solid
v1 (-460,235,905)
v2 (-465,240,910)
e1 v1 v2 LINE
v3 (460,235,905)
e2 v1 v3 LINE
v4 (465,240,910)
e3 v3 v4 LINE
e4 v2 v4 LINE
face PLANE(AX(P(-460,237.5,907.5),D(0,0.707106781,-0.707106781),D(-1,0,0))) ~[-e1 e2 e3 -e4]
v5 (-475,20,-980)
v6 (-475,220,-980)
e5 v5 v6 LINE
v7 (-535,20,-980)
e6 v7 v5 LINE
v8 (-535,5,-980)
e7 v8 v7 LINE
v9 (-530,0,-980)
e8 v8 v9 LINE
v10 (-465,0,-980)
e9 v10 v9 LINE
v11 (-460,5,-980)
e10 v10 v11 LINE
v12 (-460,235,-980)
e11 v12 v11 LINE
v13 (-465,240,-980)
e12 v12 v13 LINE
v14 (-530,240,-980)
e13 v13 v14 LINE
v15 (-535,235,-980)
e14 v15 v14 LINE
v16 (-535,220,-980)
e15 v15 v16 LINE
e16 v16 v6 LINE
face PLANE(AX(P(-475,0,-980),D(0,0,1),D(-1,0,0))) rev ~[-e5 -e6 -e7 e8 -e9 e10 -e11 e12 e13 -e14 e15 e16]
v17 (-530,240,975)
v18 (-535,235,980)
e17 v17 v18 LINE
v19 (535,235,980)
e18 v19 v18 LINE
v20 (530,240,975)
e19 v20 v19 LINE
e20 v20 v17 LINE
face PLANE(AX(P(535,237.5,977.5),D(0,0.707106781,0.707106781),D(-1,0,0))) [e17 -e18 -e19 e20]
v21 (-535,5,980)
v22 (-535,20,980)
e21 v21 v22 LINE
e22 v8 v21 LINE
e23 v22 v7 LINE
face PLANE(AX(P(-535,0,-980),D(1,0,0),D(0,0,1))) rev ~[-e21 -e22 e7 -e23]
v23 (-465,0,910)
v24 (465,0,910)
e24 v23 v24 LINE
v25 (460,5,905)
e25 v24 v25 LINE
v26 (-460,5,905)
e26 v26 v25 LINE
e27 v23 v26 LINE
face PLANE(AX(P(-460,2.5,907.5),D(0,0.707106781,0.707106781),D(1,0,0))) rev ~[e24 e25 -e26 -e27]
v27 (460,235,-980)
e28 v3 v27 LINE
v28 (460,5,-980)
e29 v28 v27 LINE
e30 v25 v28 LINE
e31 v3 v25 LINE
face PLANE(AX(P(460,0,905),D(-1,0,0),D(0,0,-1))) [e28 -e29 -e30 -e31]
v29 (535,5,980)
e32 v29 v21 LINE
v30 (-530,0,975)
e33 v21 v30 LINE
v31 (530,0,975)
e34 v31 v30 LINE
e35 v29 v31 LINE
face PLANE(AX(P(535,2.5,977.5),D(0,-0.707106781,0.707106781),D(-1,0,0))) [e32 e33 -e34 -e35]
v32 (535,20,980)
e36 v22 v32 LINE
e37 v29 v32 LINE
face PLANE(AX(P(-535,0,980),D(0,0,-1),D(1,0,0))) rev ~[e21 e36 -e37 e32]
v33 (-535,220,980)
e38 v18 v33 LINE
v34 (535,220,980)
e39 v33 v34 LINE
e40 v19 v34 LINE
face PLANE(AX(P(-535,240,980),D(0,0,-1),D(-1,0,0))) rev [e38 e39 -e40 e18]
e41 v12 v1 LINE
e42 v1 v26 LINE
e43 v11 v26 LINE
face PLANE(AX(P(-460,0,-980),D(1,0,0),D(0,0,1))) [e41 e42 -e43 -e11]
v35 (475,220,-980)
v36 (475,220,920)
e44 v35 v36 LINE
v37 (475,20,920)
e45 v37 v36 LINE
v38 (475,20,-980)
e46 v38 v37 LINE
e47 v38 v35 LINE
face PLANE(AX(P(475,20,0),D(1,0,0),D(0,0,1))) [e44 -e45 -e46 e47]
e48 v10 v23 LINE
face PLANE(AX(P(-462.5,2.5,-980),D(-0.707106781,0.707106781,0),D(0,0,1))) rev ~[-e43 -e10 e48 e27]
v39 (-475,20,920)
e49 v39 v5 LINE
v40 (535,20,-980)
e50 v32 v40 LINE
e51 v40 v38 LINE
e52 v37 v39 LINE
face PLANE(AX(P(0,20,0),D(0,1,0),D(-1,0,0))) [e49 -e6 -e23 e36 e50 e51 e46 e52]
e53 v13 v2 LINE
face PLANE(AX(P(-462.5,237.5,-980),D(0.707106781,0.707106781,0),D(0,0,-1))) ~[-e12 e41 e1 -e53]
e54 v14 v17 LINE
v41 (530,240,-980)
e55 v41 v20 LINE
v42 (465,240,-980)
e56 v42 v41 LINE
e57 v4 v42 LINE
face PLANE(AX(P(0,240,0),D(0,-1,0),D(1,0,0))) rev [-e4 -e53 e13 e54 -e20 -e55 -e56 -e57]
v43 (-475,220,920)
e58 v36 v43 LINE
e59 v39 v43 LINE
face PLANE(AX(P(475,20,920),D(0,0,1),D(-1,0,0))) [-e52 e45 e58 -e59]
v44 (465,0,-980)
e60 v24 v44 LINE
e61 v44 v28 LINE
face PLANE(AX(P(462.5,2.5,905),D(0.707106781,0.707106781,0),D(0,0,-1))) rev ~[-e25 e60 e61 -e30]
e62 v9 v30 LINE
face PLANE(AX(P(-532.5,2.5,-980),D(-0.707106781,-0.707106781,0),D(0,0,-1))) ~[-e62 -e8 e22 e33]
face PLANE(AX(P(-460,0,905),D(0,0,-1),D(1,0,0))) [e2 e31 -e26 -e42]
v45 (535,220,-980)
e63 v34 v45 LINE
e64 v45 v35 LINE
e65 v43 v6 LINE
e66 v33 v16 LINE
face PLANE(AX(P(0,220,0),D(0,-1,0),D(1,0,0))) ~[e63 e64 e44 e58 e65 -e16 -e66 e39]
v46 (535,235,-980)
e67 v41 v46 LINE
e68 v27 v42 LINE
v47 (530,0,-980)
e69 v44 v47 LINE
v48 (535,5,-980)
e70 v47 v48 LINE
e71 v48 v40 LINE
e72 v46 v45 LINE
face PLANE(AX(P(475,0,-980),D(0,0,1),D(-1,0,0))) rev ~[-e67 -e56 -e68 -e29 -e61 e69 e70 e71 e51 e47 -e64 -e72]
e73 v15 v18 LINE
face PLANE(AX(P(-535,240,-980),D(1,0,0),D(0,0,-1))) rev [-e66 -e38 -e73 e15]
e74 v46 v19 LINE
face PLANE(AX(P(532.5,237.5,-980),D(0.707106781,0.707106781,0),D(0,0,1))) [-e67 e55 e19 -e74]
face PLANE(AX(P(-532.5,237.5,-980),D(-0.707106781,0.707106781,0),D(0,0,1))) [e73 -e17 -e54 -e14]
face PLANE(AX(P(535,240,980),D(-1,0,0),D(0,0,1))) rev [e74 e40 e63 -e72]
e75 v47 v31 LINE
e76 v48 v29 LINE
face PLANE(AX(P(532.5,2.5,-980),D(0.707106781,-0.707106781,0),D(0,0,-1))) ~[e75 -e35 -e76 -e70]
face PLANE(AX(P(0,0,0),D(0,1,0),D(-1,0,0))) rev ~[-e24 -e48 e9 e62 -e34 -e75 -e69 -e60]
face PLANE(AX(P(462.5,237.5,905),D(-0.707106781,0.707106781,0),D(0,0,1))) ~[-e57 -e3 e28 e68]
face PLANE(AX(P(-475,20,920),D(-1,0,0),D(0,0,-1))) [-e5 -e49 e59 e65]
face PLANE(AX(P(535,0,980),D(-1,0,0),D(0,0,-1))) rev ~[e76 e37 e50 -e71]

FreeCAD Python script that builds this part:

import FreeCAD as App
import Part
import Sketcher
from FreeCAD import Vector


def edges_at(feature, points):
    """Names of the edges that pass closest to the given points."""
    edges = feature.Shape.Edges
    near = lambda p: min(range(len(edges)), key=lambda i: edges[i].distToShape(Part.Vertex(*p))[0])
    return sorted({f"Edge{near(p) + 1}" for p in points})

doc = App.newDocument("Part")
body = doc.addObject("PartDesign::Body", "Body")

# Sketch on XZ plane
sketch1 = doc.addObject("Sketcher::SketchObject", "Sketch")
body.addObject(sketch1)
sketch1.AttachmentSupport = (doc.XZ_Plane, [""])
sketch1.MapMode = "FlatFace"
sketch1.addGeometry([
    Part.LineSegment(Vector(-535, -980, 0), Vector(-535, 980, 0)),  # 0
    Part.LineSegment(Vector(-535, 980, 0), Vector(535, 980, 0)),  # 1
    Part.LineSegment(Vector(535, 980, 0), Vector(535, -980, 0)),  # 2
    Part.LineSegment(Vector(535, -980, 0), Vector(460, -980, 0)),  # 3
    Part.LineSegment(Vector(460, -980, 0), Vector(460, 905, 0)),  # 4
    Part.LineSegment(Vector(460, 905, 0), Vector(-460, 905, 0)),  # 5
    Part.LineSegment(Vector(-460, 905, 0), Vector(-460, -980, 0)),  # 6
    Part.LineSegment(Vector(-460, -980, 0), Vector(-535, -980, 0)),  # 7
], False)
sketch1.addConstraint([
    Sketcher.Constraint("Coincident", 0, 2, 1, 1),
    Sketcher.Constraint("Coincident", 1, 2, 2, 1),
    Sketcher.Constraint("Coincident", 2, 2, 3, 1),
    Sketcher.Constraint("Coincident", 3, 2, 4, 1),
    Sketcher.Constraint("Coincident", 4, 2, 5, 1),
    Sketcher.Constraint("Coincident", 5, 2, 6, 1),
    Sketcher.Constraint("Coincident", 6, 2, 7, 1),
    Sketcher.Constraint("Coincident", 7, 2, 0, 1),
    Sketcher.Constraint("Vertical", 0),
    Sketcher.Constraint("Horizontal", 1),
    Sketcher.Constraint("Vertical", 2),
    Sketcher.Constraint("Horizontal", 3),
    Sketcher.Constraint("Vertical", 4),
    Sketcher.Constraint("Horizontal", 5),
    Sketcher.Constraint("Vertical", 6),
    Sketcher.Constraint("Horizontal", 7),
    Sketcher.Constraint("Symmetric", 0, 2, 2, 2, -1, 1),
    Sketcher.Constraint("Symmetric", 3, 2, 6, 2, -2),
    Sketcher.Constraint("DistanceX", 1, 1, 1, 2, 1070.0),
    Sketcher.Constraint("DistanceX", 3, 2, 3, 1, 75.0),
    Sketcher.Constraint("DistanceY", 0, 1, 0, 2, 1960.0),
    Sketcher.Constraint("DistanceY", 4, 1, 4, 2, 1885.0),
])
pad1 = doc.addObject("PartDesign::Pad", "Pad")
body.addObject(pad1)
pad1.Profile = sketch1
pad1.Length = 20
pad1.Reversed = True

# Sketch on XZ plane
sketch2 = doc.addObject("Sketcher::SketchObject", "Sketch001")
body.addObject(sketch2)
sketch2.AttachmentSupport = (doc.XZ_Plane, [""])
sketch2.MapMode = "FlatFace"
sketch2.AttachmentOffset = App.Placement(Vector(0, 0, -20), App.Rotation())
sketch2.addGeometry([
    Part.LineSegment(Vector(460, 905, 0), Vector(-460, 905, 0)),  # 0
    Part.LineSegment(Vector(-460, 905, 0), Vector(-460, -980, 0)),  # 1
    Part.LineSegment(Vector(-460, -980, 0), Vector(-475, -980, 0)),  # 2
    Part.LineSegment(Vector(-475, -980, 0), Vector(-475, 920, 0)),  # 3
    Part.LineSegment(Vector(-475, 920, 0), Vector(475, 920, 0)),  # 4
    Part.LineSegment(Vector(475, 920, 0), Vector(475, -980, 0)),  # 5
    Part.LineSegment(Vector(475, -980, 0), Vector(460, -980, 0)),  # 6
    Part.LineSegment(Vector(460, -980, 0), Vector(460, 905, 0)),  # 7
], False)
sketch2.addConstraint([
    Sketcher.Constraint("Coincident", 0, 2, 1, 1),
    Sketcher.Constraint("Coincident", 1, 2, 2, 1),
    Sketcher.Constraint("Coincident", 2, 2, 3, 1),
    Sketcher.Constraint("Coincident", 3, 2, 4, 1),
    Sketcher.Constraint("Coincident", 4, 2, 5, 1),
    Sketcher.Constraint("Coincident", 5, 2, 6, 1),
    Sketcher.Constraint("Coincident", 6, 2, 7, 1),
    Sketcher.Constraint("Coincident", 7, 2, 0, 1),
    Sketcher.Constraint("Horizontal", 0),
    Sketcher.Constraint("Vertical", 1),
    Sketcher.Constraint("Horizontal", 2),
    Sketcher.Constraint("Vertical", 3),
    Sketcher.Constraint("Horizontal", 4),
    Sketcher.Constraint("Vertical", 5),
    Sketcher.Constraint("Horizontal", 6),
    Sketcher.Constraint("Vertical", 7),
    Sketcher.Constraint("Symmetric", 2, 2, 5, 2, -2),
    Sketcher.Constraint("Equal", 2, 6),
    Sketcher.Constraint("DistanceX", 4, 1, 4, 2, 950.0),
    Sketcher.Constraint("DistanceY", 3, 1, 3, 2, 1900.0),
    Sketcher.Constraint("DistanceX", 0, 2, 0, 1, 920.0),
    Sketcher.Constraint("DistanceY", 1, 2, 1, 1, 1885.0),
    Sketcher.Constraint("DistanceY", -1, 1, 0, 2, 905.0),
])
pad2 = doc.addObject("PartDesign::Pad", "Pad001")
body.addObject(pad2)
pad2.Profile = sketch2
pad2.Length = 100
pad2.Reversed = True
doc.recompute()

chamfer = doc.addObject("PartDesign::Chamfer", "Chamfer")
body.addObject(chamfer)
chamfer.Base = (pad2, edges_at(pad2, [
    (-460, 0, -37.5),
    (0, 0, 905),
    (460, 0, -37.5),
    (0, 0, 980),
    (535, 0, 0),
    (-535, 0, 0),
]))
chamfer.Size = 5
doc.recompute()

datumplane = doc.addObject("PartDesign::Plane", "DatumPlane")
body.addObject(datumplane)
datumplane.AttachmentSupport = (doc.XZ_Plane, [""])
datumplane.MapMode = "FlatFace"
datumplane.AttachmentOffset = App.Placement(Vector(0, 0, -120), App.Rotation())
mirrored = doc.addObject("PartDesign::Mirrored", "Mirrored")
body.addObject(mirrored)
mirrored.Originals = [pad1, pad2, chamfer]
mirrored.MirrorPlane = (datumplane, [""])
body.Tip = mirrored

doc.recompute()
